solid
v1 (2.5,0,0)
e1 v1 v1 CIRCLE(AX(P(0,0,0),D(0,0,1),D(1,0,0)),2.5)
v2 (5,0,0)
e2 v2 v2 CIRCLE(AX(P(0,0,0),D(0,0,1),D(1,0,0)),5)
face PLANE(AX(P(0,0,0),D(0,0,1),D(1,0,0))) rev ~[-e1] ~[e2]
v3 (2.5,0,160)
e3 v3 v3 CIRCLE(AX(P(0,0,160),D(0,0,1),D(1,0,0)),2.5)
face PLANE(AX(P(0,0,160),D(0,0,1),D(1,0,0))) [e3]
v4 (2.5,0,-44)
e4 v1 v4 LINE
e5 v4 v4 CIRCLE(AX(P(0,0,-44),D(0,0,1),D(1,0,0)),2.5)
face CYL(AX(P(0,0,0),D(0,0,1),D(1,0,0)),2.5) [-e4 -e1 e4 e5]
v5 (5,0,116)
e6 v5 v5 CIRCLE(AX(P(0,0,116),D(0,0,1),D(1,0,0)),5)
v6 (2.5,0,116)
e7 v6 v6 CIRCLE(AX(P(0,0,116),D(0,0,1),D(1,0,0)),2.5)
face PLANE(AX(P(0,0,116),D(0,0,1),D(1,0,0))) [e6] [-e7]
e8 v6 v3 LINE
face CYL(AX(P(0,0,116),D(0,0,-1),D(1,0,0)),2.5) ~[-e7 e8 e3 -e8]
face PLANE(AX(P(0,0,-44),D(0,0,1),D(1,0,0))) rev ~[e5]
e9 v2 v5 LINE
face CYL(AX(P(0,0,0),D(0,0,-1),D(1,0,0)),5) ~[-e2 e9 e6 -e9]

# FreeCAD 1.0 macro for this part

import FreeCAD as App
import Part
import Sketcher
Q = App.Units.Quantity

doc = App.newDocument("Part")
body = doc.addObject("PartDesign::Body", "Body")

sketch1 = body.newObject("Sketcher::SketchObject", "Sketch")
sketch1.AttachmentSupport = (doc.getObject("XY_Plane"), [""])
sketch1.MapMode = "FlatFace"
sketch1.addGeometry(Part.Circle(App.Vector(0, 0, 0), App.Vector(0, 0, 1), 5), False)
sketch1.addConstraint([
    Sketcher.Constraint("Coincident", 0, 3, -1, 1),
    Sketcher.Constraint("Diameter", 0, Q("10 mm")),
])
pad1 = body.newObject("PartDesign::Pad", "Pad")
pad1.Profile = sketch1
pad1.Length = 116

sketch2 = body.newObject("Sketcher::SketchObject", "Sketch001")
sketch2.AttachmentSupport = (doc.getObject("XY_Plane"), [""])
sketch2.MapMode = "FlatFace"
sketch2.AttachmentOffset = App.Placement(App.Vector(0, 0, 116), App.Rotation())
sketch2.addGeometry(Part.Circle(App.Vector(0, 0, 0), App.Vector(0, 0, 1), 2.5), False)
sketch2.addConstraint([
    Sketcher.Constraint("Coincident", 0, 3, -1, 1),
    Sketcher.Constraint("Diameter", 0, Q("5 mm")),
])
pad2 = body.newObject("PartDesign::Pad", "Pad001")
pad2.Profile = sketch2
pad2.Length = 44

sketch3 = body.newObject("Sketcher::SketchObject", "Sketch002")
sketch3.AttachmentSupport = (doc.getObject("XY_Plane"), [""])
sketch3.MapMode = "FlatFace"
sketch3.addGeometry(Part.Circle(App.Vector(0, 0, 0), App.Vector(0, 0, 1), 2.5), False)
sketch3.addConstraint([
    Sketcher.Constraint("Coincident", 0, 3, -1, 1),
    Sketcher.Constraint("Diameter", 0, Q("5 mm")),
])
pad3 = body.newObject("PartDesign::Pad", "Pad002")
pad3.Profile = sketch3
pad3.Length = 44
pad3.Reversed = True

doc.recompute()
